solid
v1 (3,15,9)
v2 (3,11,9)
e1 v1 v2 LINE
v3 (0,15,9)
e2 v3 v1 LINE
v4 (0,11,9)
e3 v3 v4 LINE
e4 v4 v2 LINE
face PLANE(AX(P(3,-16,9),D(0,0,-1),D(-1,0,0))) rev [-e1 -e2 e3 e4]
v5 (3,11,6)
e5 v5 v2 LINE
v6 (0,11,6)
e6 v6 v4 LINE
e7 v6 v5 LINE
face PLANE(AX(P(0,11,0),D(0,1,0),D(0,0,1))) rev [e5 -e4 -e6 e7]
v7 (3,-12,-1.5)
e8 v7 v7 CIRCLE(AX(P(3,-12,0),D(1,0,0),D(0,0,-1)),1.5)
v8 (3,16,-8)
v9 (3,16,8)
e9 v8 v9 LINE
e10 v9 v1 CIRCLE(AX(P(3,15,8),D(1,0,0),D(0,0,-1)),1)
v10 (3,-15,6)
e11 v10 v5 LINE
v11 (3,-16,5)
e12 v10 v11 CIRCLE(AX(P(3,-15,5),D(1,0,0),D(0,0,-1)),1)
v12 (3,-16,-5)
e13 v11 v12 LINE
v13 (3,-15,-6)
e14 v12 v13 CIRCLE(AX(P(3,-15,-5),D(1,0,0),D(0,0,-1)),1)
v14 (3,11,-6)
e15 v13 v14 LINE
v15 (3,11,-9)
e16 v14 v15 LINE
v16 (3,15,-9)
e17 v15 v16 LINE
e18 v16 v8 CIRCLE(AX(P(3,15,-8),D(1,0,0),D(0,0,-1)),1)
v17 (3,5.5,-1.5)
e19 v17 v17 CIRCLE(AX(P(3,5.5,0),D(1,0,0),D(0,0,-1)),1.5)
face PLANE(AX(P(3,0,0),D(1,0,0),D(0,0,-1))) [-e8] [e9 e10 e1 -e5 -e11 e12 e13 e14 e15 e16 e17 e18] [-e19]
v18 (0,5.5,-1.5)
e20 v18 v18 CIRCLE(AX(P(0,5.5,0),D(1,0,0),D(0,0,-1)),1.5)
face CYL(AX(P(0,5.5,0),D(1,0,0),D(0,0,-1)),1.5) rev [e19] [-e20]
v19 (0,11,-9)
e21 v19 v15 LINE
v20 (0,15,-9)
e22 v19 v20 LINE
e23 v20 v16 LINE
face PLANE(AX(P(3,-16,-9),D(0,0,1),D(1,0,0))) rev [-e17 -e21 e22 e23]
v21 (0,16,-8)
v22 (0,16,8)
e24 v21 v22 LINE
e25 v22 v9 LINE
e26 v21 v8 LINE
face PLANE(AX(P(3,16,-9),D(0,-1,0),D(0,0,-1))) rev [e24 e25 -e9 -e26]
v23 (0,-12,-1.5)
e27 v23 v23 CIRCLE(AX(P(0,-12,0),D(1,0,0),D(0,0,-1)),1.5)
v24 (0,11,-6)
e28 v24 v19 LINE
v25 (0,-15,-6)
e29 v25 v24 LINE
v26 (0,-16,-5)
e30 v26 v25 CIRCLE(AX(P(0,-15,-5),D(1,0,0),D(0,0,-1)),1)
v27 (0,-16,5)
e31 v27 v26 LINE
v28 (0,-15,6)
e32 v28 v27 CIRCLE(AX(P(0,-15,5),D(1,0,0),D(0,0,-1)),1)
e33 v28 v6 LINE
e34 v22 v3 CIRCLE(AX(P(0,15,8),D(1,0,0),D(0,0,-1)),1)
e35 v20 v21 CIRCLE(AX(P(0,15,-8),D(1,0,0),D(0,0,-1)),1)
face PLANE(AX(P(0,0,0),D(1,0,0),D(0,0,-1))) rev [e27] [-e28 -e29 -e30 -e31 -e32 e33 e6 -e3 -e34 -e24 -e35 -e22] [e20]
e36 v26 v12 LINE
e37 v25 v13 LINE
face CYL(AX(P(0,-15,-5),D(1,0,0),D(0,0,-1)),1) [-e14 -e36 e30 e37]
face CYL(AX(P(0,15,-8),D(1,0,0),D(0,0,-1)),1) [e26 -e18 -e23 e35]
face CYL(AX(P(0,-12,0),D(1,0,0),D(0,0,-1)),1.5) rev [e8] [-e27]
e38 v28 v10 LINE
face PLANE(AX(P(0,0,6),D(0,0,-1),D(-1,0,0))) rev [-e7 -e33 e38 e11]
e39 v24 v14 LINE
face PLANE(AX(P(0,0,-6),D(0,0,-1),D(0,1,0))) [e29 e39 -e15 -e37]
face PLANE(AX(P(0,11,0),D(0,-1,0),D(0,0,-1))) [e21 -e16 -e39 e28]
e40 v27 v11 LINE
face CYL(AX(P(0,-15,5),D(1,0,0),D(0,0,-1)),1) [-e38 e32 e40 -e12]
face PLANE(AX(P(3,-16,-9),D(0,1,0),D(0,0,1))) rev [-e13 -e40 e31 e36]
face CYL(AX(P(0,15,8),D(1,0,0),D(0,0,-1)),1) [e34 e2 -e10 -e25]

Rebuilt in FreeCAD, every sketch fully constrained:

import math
import FreeCAD as App
import Part
import Sketcher

doc = App.newDocument("Part")
body = doc.addObject("PartDesign::Body", "Body")

# Sketch on YZ plane
sketch1 = body.newObject("Sketcher::SketchObject", "Sketch")
sketch1.AttachmentSupport = (doc.getObject("YZ_Plane"), [""])
sketch1.MapMode = "FlatFace"
sketch1.addGeometry([
    Part.LineSegment(App.Vector(16, 9, 0), App.Vector(-16, 9, 0)),
    Part.LineSegment(App.Vector(-16, 9, 0), App.Vector(-16, -9, 0)),
    Part.LineSegment(App.Vector(-16, -9, 0), App.Vector(16, -9, 0)),
    Part.LineSegment(App.Vector(16, -9, 0), App.Vector(16, 9, 0)),
], False)
sketch1.addConstraint([
    Sketcher.Constraint("Coincident", 0, 2, 1, 1),
    Sketcher.Constraint("Coincident", 1, 2, 2, 1),
    Sketcher.Constraint("Coincident", 2, 2, 3, 1),
    Sketcher.Constraint("Coincident", 3, 2, 0, 1),
    Sketcher.Constraint("Horizontal", 0),
    Sketcher.Constraint("Vertical", 1),
    Sketcher.Constraint("Horizontal", 2),
    Sketcher.Constraint("Vertical", 3),
    Sketcher.Constraint("Symmetric", 0, 2, 2, 2, -1, 1),
    Sketcher.Constraint("DistanceX", 0, 2, 0, 1, 32.0),
    Sketcher.Constraint("DistanceY", 1, 2, 1, 1, 18.0),
])
pad1 = body.newObject("PartDesign::Pad", "Pad")
pad1.Profile = sketch1
pad1.Length = 3

# Sketch on YZ plane
sketch2 = body.newObject("Sketcher::SketchObject", "Sketch001")
sketch2.AttachmentSupport = (doc.getObject("YZ_Plane"), [""])
sketch2.MapMode = "FlatFace"
sketch2.AttachmentOffset = App.Placement(App.Vector(0, 0, 3), App.Rotation())
sketch2.addGeometry([
    Part.ArcOfCircle(Part.Circle(App.Vector(15, -8, 0), App.Vector(0, 0, 1), 1), math.radians(-90), math.radians(0)),  # 0
    Part.LineSegment(App.Vector(15, -9, 0), App.Vector(16, -9, 0)),  # 1
    Part.LineSegment(App.Vector(16, -9, 0), App.Vector(16, -8, 0)),  # 2
    Part.ArcOfCircle(Part.Circle(App.Vector(15, 8, 0), App.Vector(0, 0, 1), 1), math.radians(0), math.radians(90)),  # 3
    Part.LineSegment(App.Vector(16, 8, 0), App.Vector(16, 9, 0)),  # 4
    Part.LineSegment(App.Vector(16, 9, 0), App.Vector(15, 9, 0)),  # 5
    Part.ArcOfCircle(Part.Circle(App.Vector(-15, 5, 0), App.Vector(0, 0, 1), 1), math.radians(90), math.radians(180)),  # 6
    Part.LineSegment(App.Vector(-15, 6, 0), App.Vector(11, 6, 0)),  # 7
    Part.LineSegment(App.Vector(11, 6, 0), App.Vector(11, 9, 0)),  # 8
    Part.LineSegment(App.Vector(11, 9, 0), App.Vector(-16, 9, 0)),  # 9
    Part.LineSegment(App.Vector(-16, 9, 0), App.Vector(-16, 5, 0)),  # 10
    Part.LineSegment(App.Vector(11, -6, 0), App.Vector(-15, -6, 0)),  # 11
    Part.ArcOfCircle(Part.Circle(App.Vector(-15, -5, 0), App.Vector(0, 0, 1), 1), math.radians(-180), math.radians(-90)),  # 12
    Part.LineSegment(App.Vector(-16, -5, 0), App.Vector(-16, -9, 0)),  # 13
    Part.LineSegment(App.Vector(-16, -9, 0), App.Vector(11, -9, 0)),  # 14
    Part.LineSegment(App.Vector(11, -9, 0), App.Vector(11, -6, 0)),  # 15
    Part.Circle(App.Vector(5.5, 0, 0), App.Vector(0, 0, 1), 1.5),  # 16
    Part.Circle(App.Vector(-12, 0, 0), App.Vector(0, 0, 1), 1.5),  # 17
], False)
sketch2.addConstraint([
    Sketcher.Constraint("Tangent", 0, 1, 1, 1),
    Sketcher.Constraint("Coincident", 1, 2, 2, 1),
    Sketcher.Constraint("Tangent", 2, 2, 0, 2),
    Sketcher.Constraint("Tangent", 3, 1, 4, 1),
    Sketcher.Constraint("Coincident", 4, 2, 5, 1),
    Sketcher.Constraint("Tangent", 5, 2, 3, 2),
    Sketcher.Constraint("Tangent", 6, 1, 7, 1),
    Sketcher.Constraint("Coincident", 7, 2, 8, 1),
    Sketcher.Constraint("Coincident", 8, 2, 9, 1),
    Sketcher.Constraint("Coincident", 9, 2, 10, 1),
    Sketcher.Constraint("Tangent", 10, 2, 6, 2),
    Sketcher.Constraint("Tangent", 11, 2, 12, 2),
    Sketcher.Constraint("Tangent", 12, 1, 13, 1),
    Sketcher.Constraint("Coincident", 13, 2, 14, 1),
    Sketcher.Constraint("Coincident", 14, 2, 15, 1),
    Sketcher.Constraint("Coincident", 15, 2, 11, 1),
    Sketcher.Constraint("Horizontal", 1),
    Sketcher.Constraint("Vertical", 2),
    Sketcher.Constraint("Vertical", 4),
    Sketcher.Constraint("Horizontal", 5),
    Sketcher.Constraint("Horizontal", 7),
    Sketcher.Constraint("Vertical", 8),
    Sketcher.Constraint("Horizontal", 9),
    Sketcher.Constraint("Vertical", 10),
    Sketcher.Constraint("Horizontal", 11),
    Sketcher.Constraint("Vertical", 13),
    Sketcher.Constraint("Horizontal", 14),
    Sketcher.Constraint("Vertical", 15),
    Sketcher.Constraint("Equal", 0, 3),
    Sketcher.Constraint("Equal", 3, 6),
    Sketcher.Constraint("Equal", 6, 12),
    Sketcher.Constraint("Equal", 16, 17),
    Sketcher.Constraint("Symmetric", 1, 2, 9, 2, -1, 1),
    Sketcher.Constraint("Symmetric", 4, 2, 13, 2, -1, 1),
    Sketcher.Constraint("Symmetric", 4, 2, 9, 2, -2),
    Sketcher.Constraint("Symmetric", 7, 2, 15, 2, -1),
    Sketcher.Constraint("PointOnObject", 16, 3, -1),
    Sketcher.Constraint("PointOnObject", 17, 3, -1),
    Sketcher.Constraint("Diameter", 16, 3.0),
    Sketcher.Constraint("Radius", 0, 1.0),
    Sketcher.Constraint("DistanceX", 7, 1, 7, 2, 26.0),
    Sketcher.Constraint("DistanceY", 8, 1, 8, 2, 3.0),
    Sketcher.Constraint("DistanceX", -1, 1, 0, 3, 15.0),
    Sketcher.Constraint("DistanceY", 0, 3, -1, 1, 8.0),
    Sketcher.Constraint("DistanceX", 17, 3, -1, 1, 12.0),
    Sketcher.Constraint("DistanceX", -1, 1, 16, 3, 5.5),
])
pocket1 = body.newObject("PartDesign::Pocket", "Pocket")
pocket1.Profile = sketch2
pocket1.Length = 3

doc.recompute()
